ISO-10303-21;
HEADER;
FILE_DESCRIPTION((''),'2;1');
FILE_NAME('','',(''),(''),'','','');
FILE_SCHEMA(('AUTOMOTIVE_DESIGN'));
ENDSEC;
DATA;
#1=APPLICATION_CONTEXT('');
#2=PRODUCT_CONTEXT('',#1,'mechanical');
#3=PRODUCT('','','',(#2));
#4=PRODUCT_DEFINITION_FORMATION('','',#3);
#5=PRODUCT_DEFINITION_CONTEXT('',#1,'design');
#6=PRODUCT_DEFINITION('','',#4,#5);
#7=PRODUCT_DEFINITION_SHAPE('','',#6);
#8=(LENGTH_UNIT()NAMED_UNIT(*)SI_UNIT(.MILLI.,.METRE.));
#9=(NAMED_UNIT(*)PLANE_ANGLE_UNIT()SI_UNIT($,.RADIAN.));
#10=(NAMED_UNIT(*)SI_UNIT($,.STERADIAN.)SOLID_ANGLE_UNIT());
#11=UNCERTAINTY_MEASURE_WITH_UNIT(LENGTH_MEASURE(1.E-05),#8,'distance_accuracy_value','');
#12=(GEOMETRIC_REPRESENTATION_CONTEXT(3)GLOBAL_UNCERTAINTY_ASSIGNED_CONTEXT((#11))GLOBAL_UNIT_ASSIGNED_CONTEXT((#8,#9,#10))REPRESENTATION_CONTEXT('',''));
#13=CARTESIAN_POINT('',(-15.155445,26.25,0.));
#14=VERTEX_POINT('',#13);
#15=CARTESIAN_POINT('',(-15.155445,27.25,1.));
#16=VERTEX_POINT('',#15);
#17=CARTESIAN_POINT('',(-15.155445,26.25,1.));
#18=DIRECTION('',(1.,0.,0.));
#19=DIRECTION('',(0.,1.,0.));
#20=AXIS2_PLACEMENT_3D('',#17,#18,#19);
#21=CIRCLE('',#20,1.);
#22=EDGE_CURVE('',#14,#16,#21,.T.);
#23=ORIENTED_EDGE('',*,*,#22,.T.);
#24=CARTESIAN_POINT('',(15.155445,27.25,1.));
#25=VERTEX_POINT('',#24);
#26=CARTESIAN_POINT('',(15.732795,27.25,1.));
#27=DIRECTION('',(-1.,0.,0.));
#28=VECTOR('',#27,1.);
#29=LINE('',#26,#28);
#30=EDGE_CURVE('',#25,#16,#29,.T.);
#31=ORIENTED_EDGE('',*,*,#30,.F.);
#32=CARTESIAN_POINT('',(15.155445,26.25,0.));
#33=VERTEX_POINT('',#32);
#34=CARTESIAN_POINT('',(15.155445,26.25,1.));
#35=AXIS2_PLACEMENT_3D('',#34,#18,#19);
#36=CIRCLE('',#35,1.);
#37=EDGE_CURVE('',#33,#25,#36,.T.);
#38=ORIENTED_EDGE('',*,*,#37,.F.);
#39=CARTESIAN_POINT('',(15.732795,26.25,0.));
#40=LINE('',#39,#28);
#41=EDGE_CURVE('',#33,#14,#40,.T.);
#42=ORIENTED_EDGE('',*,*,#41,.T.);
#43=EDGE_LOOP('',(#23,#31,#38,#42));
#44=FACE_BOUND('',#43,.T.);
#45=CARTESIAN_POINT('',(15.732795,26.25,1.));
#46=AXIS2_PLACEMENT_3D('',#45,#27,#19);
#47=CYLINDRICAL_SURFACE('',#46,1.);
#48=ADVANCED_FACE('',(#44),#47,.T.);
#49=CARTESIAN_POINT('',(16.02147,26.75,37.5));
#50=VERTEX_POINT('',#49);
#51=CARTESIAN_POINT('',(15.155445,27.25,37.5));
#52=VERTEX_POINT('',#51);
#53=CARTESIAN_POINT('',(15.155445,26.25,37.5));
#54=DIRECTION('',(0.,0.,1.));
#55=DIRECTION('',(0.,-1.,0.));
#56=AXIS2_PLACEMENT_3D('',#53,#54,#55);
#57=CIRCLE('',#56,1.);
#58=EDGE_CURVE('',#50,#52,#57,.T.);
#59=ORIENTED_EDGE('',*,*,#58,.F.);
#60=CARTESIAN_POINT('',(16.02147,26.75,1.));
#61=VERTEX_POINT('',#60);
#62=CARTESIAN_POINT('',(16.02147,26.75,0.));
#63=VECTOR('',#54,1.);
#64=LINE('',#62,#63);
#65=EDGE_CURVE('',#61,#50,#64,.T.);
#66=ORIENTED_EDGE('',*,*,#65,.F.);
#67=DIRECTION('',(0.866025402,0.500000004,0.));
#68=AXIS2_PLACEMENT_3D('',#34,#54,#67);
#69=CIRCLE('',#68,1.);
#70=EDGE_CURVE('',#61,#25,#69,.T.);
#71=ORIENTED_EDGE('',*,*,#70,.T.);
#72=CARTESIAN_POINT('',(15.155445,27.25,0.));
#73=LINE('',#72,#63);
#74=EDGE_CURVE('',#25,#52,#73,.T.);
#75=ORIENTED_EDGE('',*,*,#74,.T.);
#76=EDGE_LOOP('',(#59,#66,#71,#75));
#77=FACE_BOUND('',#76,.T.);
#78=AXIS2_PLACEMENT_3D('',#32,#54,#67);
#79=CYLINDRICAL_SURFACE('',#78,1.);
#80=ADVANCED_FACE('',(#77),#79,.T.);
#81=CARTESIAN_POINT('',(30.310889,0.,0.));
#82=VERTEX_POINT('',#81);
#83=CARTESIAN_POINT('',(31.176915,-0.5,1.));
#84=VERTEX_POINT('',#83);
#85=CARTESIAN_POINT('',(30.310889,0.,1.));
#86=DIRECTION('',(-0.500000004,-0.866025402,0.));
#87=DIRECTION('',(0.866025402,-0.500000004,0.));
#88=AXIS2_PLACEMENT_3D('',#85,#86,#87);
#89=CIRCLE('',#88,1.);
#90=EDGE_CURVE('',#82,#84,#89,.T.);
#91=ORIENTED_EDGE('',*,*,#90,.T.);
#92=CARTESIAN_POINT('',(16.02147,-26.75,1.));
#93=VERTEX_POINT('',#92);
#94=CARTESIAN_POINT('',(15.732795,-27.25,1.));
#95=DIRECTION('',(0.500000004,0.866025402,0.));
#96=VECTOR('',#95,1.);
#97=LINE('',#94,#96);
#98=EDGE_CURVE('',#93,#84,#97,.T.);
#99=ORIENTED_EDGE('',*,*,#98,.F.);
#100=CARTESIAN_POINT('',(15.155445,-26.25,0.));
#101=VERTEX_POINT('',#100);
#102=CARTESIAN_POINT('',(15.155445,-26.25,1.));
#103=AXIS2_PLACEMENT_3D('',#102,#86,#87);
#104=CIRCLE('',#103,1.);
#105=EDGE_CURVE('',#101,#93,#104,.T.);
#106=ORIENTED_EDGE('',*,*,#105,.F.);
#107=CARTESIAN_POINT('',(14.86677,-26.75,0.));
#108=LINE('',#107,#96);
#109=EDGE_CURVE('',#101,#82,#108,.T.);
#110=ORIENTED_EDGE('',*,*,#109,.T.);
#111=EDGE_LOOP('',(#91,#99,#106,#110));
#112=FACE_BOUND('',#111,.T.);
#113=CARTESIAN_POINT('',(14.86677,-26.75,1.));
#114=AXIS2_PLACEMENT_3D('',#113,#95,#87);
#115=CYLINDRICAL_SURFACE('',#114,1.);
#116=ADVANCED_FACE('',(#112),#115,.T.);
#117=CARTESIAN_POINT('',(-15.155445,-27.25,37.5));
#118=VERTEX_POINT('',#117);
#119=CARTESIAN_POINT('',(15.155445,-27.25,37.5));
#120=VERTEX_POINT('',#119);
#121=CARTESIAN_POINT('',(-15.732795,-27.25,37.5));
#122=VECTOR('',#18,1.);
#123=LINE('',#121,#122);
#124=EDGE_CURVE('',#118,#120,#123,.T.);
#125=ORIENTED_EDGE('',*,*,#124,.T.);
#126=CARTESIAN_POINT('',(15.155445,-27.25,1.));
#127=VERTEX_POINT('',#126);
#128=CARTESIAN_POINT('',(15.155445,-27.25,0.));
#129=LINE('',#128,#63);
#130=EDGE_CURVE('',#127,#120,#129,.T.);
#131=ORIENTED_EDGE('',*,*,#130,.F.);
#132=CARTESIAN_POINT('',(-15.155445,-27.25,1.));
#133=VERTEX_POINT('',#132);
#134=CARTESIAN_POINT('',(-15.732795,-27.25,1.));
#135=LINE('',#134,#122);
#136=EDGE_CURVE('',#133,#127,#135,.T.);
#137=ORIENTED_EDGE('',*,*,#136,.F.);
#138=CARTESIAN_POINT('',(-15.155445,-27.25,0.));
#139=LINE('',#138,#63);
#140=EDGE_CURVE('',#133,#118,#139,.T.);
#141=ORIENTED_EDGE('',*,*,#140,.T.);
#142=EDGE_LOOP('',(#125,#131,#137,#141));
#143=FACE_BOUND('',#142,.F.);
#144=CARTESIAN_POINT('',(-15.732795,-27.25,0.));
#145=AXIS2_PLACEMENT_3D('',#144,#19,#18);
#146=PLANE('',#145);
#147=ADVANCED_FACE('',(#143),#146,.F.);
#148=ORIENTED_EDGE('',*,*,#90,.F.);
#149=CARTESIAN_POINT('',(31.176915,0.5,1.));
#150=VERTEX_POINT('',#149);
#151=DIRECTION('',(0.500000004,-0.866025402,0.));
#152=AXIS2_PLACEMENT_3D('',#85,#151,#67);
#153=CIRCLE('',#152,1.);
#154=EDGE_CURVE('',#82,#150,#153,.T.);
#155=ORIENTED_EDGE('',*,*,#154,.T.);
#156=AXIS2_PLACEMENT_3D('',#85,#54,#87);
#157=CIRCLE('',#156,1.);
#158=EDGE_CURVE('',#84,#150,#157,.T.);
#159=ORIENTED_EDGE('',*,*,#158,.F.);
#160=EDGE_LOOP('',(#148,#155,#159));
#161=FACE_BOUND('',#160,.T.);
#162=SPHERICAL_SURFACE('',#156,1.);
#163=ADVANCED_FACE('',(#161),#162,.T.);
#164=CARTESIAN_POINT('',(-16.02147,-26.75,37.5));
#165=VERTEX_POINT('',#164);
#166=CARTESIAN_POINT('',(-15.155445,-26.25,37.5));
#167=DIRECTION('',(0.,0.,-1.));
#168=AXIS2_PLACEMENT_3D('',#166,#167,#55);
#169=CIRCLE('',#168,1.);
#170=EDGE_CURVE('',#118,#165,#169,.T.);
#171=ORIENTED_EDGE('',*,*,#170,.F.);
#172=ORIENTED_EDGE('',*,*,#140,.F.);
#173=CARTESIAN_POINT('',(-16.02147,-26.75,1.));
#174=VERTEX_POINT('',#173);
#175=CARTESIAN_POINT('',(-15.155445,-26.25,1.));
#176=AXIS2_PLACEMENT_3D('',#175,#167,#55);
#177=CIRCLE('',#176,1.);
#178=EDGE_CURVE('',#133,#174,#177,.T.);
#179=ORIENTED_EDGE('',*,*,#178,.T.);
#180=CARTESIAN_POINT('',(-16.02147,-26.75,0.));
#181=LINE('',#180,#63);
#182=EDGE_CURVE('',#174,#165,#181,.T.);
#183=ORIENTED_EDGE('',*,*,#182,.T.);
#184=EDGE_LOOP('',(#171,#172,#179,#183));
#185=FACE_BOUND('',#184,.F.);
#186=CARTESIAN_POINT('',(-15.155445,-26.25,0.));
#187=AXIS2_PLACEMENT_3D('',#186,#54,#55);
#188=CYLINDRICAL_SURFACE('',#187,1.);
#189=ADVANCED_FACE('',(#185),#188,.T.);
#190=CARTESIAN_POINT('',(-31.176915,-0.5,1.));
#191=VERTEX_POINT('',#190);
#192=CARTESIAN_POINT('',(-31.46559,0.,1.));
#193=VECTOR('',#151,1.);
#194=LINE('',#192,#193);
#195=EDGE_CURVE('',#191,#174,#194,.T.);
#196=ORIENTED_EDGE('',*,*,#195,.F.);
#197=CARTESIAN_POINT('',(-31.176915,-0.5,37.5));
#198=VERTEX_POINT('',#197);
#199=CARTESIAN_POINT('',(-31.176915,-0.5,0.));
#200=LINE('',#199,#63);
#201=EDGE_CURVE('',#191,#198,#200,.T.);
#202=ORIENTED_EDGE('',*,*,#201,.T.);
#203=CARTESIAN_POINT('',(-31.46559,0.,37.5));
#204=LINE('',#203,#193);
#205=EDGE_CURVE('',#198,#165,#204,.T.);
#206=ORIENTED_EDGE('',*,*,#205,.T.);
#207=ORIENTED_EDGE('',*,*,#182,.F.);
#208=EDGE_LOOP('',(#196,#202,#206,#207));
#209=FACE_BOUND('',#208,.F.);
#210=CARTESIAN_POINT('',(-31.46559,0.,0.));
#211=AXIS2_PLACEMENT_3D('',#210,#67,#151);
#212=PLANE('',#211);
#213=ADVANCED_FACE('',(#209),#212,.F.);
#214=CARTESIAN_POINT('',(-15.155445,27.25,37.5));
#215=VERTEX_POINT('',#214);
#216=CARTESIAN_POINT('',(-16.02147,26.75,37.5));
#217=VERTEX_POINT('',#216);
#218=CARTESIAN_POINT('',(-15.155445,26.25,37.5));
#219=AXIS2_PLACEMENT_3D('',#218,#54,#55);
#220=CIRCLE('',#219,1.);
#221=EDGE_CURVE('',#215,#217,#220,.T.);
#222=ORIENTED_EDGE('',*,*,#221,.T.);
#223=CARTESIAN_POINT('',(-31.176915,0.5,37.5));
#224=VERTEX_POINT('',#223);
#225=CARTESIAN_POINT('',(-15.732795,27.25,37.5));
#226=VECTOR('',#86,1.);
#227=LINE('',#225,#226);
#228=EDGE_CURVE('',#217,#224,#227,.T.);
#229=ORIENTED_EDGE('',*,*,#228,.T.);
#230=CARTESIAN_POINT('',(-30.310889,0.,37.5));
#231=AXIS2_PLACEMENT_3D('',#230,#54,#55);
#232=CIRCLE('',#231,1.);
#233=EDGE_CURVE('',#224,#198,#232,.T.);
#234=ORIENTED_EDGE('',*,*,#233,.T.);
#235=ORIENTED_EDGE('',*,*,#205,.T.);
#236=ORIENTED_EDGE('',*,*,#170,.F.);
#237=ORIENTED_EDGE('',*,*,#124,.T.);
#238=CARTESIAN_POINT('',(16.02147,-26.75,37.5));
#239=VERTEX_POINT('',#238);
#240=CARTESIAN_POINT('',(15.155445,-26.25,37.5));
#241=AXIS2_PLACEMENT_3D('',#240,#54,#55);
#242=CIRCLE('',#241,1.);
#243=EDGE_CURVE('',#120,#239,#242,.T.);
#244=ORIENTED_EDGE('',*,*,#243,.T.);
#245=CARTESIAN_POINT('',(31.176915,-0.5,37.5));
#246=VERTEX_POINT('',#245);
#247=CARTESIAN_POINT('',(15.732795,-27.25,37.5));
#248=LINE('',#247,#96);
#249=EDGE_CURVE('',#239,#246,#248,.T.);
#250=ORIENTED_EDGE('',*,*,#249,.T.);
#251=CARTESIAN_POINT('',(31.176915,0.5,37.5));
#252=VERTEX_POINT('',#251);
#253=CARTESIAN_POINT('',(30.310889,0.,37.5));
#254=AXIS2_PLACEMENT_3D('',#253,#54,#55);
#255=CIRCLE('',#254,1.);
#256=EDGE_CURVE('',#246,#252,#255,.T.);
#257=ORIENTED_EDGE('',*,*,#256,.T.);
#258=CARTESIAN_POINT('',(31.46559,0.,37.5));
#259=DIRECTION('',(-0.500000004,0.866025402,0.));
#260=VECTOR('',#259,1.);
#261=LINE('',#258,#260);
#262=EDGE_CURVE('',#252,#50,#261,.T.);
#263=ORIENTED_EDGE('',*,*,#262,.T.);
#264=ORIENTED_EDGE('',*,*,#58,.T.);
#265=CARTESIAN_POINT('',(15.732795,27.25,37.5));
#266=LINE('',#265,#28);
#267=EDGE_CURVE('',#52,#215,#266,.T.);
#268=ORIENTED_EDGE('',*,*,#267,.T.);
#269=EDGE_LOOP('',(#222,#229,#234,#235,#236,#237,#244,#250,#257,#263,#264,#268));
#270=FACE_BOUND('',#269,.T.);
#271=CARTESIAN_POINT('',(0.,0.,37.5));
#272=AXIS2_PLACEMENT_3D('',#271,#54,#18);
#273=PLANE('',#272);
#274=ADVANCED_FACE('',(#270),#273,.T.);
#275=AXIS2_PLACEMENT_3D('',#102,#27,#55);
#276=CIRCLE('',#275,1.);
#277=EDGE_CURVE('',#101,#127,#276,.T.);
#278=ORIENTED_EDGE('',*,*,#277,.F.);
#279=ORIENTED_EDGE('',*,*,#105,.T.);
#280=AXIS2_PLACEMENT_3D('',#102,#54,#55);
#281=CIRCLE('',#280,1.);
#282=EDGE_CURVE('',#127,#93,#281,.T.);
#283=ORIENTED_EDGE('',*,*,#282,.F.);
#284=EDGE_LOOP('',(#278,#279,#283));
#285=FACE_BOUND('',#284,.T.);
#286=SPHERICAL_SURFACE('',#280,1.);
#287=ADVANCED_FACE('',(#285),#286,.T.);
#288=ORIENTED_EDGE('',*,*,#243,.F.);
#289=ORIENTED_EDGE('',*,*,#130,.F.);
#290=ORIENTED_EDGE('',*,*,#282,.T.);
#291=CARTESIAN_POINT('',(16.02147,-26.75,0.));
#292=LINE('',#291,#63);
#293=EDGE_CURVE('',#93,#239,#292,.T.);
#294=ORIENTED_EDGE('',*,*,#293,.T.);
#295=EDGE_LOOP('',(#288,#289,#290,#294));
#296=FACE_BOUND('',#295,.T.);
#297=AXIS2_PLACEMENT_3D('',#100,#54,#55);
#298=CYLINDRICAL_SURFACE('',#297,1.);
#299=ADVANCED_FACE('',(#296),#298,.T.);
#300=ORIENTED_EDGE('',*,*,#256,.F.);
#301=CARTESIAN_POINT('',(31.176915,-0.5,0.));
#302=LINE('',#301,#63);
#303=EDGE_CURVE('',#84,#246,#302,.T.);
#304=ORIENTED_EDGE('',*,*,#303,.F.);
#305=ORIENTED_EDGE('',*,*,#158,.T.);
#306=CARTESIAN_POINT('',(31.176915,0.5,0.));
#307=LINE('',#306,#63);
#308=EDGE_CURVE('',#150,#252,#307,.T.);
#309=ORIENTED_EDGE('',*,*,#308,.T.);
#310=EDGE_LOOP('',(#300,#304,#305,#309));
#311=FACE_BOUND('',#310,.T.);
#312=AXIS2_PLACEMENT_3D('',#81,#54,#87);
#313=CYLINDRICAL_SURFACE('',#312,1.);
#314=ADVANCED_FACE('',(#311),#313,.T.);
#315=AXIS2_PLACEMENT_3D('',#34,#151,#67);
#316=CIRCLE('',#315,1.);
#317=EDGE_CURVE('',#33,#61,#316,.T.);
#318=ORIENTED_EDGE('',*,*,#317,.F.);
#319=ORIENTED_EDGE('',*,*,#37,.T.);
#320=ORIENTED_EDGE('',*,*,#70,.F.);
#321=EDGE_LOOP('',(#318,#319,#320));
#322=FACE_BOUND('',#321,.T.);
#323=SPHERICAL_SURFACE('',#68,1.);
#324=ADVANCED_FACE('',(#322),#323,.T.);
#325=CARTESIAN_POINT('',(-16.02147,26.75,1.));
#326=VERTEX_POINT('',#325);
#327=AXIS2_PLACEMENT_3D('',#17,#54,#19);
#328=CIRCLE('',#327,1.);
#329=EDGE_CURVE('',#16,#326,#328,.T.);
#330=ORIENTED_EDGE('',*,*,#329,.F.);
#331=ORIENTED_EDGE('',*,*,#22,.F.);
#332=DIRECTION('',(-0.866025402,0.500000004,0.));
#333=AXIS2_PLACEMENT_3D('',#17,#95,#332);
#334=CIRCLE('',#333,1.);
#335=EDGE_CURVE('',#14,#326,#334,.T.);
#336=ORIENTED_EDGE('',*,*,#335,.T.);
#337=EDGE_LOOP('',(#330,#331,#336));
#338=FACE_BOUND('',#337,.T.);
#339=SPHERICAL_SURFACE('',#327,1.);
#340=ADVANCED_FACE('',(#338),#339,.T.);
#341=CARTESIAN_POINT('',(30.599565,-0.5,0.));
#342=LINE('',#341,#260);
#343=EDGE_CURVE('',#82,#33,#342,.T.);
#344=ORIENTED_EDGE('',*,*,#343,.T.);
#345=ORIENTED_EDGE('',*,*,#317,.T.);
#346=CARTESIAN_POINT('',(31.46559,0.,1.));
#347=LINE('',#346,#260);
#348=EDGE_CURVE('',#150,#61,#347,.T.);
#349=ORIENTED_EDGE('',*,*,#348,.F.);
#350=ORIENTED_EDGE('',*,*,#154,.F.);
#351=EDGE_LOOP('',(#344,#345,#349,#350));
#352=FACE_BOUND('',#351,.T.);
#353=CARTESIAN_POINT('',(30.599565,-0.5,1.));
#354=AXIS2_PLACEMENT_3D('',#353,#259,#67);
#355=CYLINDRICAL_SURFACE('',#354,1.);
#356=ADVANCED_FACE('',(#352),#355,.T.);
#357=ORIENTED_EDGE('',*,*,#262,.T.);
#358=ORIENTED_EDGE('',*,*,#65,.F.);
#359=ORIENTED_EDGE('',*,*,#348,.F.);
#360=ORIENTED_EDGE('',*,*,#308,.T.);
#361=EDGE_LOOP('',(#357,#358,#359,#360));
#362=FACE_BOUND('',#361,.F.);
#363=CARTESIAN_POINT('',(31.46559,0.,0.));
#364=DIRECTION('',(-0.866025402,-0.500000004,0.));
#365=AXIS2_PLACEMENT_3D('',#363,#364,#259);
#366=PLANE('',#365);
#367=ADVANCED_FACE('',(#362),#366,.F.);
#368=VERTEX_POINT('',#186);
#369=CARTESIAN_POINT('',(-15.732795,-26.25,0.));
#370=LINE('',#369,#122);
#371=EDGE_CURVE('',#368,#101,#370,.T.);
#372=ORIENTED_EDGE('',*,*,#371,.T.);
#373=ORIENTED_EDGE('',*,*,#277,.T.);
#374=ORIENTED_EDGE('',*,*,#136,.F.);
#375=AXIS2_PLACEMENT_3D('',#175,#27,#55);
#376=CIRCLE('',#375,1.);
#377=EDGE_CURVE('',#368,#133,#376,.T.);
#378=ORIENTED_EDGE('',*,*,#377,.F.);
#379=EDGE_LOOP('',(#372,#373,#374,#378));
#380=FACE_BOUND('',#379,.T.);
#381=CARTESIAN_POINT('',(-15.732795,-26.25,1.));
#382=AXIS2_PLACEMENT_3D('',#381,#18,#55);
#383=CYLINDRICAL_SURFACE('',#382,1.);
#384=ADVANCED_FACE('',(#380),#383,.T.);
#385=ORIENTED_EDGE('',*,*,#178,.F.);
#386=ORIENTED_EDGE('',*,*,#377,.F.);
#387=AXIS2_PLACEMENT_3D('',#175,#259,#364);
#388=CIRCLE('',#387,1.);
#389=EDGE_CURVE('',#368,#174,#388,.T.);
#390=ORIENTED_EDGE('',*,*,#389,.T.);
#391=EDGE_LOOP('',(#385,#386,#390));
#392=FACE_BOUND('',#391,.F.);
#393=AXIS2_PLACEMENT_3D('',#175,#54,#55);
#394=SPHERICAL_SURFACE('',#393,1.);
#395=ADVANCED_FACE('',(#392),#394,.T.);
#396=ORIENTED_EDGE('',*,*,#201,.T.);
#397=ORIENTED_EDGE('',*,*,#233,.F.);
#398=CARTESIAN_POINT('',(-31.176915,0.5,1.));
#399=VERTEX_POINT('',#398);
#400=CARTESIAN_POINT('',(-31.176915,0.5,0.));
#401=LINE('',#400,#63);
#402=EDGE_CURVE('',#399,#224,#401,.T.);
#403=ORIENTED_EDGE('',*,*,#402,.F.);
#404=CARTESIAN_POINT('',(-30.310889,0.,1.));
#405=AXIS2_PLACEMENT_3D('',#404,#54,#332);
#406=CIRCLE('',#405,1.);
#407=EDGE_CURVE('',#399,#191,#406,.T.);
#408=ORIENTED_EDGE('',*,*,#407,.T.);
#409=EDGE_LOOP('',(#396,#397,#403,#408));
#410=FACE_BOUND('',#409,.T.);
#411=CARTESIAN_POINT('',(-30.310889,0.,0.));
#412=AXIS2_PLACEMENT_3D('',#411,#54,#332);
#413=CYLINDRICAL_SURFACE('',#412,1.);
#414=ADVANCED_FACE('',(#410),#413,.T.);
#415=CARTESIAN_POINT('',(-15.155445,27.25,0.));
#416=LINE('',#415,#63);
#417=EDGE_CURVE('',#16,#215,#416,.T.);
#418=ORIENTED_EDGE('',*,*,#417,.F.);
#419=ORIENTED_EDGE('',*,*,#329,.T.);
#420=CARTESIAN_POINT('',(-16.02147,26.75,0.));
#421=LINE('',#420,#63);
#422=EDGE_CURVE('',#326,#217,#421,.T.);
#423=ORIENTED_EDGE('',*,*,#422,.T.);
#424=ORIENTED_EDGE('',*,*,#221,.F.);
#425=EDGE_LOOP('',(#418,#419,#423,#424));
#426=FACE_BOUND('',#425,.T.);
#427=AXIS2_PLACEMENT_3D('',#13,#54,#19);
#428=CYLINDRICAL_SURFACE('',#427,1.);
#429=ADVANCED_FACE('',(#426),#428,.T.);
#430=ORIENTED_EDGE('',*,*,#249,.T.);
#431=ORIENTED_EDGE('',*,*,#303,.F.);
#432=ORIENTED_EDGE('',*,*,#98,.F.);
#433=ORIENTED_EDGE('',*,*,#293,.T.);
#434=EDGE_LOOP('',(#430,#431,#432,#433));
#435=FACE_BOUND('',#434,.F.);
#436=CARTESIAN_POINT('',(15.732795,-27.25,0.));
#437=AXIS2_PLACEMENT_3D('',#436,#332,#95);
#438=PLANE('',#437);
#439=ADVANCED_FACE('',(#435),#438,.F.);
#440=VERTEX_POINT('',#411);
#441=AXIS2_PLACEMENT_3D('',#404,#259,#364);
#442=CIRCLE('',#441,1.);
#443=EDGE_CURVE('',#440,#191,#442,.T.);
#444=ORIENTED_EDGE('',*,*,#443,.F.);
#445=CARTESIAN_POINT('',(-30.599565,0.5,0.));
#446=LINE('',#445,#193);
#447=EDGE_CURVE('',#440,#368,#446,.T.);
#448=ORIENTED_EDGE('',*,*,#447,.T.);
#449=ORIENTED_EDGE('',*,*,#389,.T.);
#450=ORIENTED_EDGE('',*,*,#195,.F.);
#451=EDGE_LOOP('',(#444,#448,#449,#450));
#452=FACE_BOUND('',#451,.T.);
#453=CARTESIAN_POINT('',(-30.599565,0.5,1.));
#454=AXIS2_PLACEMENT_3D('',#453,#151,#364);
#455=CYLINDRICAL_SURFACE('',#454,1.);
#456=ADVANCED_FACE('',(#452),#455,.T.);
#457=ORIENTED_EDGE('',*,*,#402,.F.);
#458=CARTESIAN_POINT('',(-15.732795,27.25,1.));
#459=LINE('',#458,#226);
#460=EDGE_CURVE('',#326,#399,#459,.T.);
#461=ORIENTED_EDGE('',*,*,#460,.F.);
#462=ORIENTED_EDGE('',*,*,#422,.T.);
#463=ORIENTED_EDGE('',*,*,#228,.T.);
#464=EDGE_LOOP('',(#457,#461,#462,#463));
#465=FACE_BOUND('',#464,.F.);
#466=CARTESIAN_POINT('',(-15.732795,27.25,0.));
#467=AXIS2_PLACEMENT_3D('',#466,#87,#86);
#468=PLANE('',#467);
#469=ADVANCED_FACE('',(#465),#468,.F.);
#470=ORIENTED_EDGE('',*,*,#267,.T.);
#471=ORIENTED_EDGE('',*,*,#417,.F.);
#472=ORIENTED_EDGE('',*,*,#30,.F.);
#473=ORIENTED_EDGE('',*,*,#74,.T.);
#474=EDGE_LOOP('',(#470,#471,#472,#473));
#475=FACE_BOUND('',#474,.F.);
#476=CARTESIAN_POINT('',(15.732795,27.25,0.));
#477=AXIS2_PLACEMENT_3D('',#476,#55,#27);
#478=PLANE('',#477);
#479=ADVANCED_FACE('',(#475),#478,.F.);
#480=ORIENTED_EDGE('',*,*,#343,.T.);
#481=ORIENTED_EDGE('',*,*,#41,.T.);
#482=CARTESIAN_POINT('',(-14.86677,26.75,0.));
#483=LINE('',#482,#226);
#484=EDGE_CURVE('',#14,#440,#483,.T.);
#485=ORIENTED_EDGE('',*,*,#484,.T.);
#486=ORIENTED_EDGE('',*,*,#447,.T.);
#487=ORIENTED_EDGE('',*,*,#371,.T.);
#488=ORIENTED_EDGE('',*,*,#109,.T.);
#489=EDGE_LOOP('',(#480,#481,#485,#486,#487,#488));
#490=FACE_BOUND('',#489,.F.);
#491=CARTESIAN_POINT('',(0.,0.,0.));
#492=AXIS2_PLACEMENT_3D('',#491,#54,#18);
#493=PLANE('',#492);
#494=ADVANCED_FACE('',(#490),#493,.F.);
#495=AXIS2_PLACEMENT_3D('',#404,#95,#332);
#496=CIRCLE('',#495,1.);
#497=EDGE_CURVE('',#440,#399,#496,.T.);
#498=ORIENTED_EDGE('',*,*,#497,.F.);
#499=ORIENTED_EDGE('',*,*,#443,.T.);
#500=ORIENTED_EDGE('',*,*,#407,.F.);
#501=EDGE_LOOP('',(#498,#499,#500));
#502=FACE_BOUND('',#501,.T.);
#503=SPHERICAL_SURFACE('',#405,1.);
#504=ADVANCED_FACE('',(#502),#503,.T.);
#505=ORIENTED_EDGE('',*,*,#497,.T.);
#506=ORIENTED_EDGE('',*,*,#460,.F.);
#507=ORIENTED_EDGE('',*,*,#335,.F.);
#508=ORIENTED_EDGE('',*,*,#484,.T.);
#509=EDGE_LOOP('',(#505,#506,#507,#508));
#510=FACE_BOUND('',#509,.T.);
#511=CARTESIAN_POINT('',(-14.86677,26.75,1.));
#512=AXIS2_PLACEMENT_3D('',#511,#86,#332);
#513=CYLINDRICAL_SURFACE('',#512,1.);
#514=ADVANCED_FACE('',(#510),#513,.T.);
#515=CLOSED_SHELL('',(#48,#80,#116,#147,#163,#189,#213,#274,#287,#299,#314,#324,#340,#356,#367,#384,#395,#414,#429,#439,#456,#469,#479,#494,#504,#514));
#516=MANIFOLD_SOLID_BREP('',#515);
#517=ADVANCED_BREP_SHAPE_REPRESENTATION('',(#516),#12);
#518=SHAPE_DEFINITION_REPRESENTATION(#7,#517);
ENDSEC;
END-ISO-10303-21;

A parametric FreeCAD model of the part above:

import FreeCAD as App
import Part
import Sketcher
Q = App.Units.Quantity


def edges_at(feature, points):
    """Names of the edges that pass closest to the given points."""
    edges = feature.Shape.Edges
    near = lambda p: min(range(len(edges)), key=lambda i: edges[i].distToShape(Part.Vertex(*p))[0])
    return sorted({f"Edge{near(p) + 1}" for p in points})


def add_polygon(sketch, points):
    """Adds a closed chain of lines whose ends are joined by coincident constraints."""
    first, n = sketch.GeometryCount, len(points)
    for a, b in zip(points, points[1:] + points[:1]):
        sketch.addGeometry(Part.LineSegment(App.Vector(*a, 0), App.Vector(*b, 0)), False)
    for i in range(n):
        sketch.addConstraint(Sketcher.Constraint("Coincident", first + i, 2, first + (i + 1) % n, 1))

doc = App.newDocument("Part")
body = doc.addObject("PartDesign::Body", "Body")

# Sketch on XY plane
sketch1 = doc.addObject("Sketcher::SketchObject", "Sketch")
body.addObject(sketch1)
sketch1.AttachmentSupport = (doc.XY_Plane, [""])
sketch1.MapMode = "FlatFace"
add_polygon(sketch1, [(-15.732795, -27.25), (15.732795, -27.25), (31.46559, 0), (15.732795, 27.25), (-15.732795, 27.25), (-31.46559, 0)])  # lines 0-5
sketch1.addConstraint([
    Sketcher.Constraint("Horizontal", 0),
    Sketcher.Constraint("Horizontal", 3),
    Sketcher.Constraint("Symmetric", 0, 2, 3, 2, -1, 1),
    Sketcher.Constraint("Symmetric", 1, 2, 4, 2, -1, 1),
    Sketcher.Constraint("PointOnObject", 1, 2, -1),
    Sketcher.Constraint("Parallel", 2, 5),
    Sketcher.Constraint("Vertical", 0, 2, 2, 2),
    Sketcher.Constraint("Angle", 1, Q("60 deg")),
    Sketcher.Constraint("DistanceY", 0, 2, 2, 2, 54.5),
    Sketcher.Constraint("DistanceX", 0, 1, 0, 2, 31.46559),
])
pad1 = doc.addObject("PartDesign::Pad", "Pad")
body.addObject(pad1)
pad1.Profile = sketch1
pad1.Length = 37.5
doc.recompute()

fillet = doc.addObject("PartDesign::Fillet", "Fillet")
body.addObject(fillet)
fillet.Base = (pad1, edges_at(pad1, [
    (0, -27.25, 0),
    (23.599, -13.625, 0),
    (23.599, 13.625, 0),
    (0, 27.25, 0),
    (-23.599, 13.625, 0),
    (-23.599, -13.625, 0),
    (15.733, -27.25, 18.75),
    (31.466, 0, 18.75),
    (-15.733, -27.25, 18.75),
    (-31.466, 0, 18.75),
    (-15.733, 27.25, 18.75),
    (15.733, 27.25, 18.75),
]))
fillet.Radius = 1

doc.recompute()
